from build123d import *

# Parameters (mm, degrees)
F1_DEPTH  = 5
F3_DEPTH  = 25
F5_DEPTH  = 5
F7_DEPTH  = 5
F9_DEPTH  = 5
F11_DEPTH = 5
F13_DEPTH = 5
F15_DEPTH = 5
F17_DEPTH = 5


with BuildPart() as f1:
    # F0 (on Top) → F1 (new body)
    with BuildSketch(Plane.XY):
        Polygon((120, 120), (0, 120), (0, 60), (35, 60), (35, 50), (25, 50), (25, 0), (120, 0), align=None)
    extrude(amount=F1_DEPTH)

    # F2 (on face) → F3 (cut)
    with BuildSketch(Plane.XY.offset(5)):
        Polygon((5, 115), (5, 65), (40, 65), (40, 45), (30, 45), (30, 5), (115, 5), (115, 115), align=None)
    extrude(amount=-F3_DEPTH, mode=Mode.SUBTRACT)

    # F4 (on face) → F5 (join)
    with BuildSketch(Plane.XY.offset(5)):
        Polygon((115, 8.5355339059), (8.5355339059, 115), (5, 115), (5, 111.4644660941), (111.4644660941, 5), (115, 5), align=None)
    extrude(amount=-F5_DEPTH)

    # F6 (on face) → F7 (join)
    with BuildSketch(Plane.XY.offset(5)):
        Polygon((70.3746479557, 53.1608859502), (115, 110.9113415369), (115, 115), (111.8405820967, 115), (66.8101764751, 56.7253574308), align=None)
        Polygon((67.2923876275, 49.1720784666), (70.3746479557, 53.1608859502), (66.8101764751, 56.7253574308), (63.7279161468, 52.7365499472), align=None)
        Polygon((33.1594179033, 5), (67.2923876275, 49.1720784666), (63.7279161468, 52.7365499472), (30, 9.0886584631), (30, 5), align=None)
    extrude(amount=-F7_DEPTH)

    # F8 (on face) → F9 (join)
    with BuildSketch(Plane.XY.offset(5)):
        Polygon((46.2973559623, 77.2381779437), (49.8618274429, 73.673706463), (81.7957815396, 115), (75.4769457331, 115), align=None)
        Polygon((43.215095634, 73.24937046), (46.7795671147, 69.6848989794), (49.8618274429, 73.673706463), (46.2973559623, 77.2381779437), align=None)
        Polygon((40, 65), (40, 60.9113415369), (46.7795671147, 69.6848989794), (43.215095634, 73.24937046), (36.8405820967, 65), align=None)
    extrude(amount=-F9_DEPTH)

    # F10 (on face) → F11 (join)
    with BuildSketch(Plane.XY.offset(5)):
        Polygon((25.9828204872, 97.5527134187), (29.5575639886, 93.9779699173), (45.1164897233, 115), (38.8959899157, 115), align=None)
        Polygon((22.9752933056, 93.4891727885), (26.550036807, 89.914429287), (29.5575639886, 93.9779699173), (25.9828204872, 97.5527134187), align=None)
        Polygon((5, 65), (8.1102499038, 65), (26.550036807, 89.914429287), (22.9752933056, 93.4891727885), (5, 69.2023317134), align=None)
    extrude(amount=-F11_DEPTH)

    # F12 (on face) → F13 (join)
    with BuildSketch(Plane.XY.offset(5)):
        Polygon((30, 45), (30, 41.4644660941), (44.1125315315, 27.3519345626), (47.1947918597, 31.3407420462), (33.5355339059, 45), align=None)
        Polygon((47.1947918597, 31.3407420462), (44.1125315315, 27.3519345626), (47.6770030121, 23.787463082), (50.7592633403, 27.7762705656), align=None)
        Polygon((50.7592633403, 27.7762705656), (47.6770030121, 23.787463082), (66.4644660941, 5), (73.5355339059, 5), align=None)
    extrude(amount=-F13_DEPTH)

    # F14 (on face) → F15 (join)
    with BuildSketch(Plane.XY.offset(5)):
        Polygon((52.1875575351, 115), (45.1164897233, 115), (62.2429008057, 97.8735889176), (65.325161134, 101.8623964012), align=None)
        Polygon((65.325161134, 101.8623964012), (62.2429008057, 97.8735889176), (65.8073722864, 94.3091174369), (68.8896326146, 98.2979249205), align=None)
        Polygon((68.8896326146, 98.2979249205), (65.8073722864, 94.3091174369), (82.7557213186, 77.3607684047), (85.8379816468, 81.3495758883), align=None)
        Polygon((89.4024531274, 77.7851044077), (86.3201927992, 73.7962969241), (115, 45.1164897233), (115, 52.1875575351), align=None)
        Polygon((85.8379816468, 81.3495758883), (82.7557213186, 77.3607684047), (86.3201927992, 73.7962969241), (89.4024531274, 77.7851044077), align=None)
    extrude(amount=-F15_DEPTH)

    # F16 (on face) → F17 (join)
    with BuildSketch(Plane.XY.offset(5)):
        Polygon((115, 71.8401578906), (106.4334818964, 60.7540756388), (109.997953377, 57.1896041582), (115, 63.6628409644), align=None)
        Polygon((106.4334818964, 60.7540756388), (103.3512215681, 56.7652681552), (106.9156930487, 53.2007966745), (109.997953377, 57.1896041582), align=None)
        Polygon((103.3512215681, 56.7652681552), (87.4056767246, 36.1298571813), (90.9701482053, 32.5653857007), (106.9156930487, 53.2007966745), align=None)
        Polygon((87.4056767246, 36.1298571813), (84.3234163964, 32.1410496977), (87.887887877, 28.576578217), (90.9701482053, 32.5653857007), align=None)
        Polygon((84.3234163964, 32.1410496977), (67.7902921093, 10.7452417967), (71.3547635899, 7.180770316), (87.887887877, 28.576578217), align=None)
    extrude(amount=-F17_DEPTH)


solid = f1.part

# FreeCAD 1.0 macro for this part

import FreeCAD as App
import Part
import Sketcher
Q = App.Units.Quantity

doc = App.newDocument("Part")
body = doc.addObject("PartDesign::Body", "Body")

# Sketch on XY plane
sketch1 = body.newObject("Sketcher::SketchObject", "Sketch")
sketch1.AttachmentSupport = (doc.getObject("XY_Plane"), [""])
sketch1.MapMode = "FlatFace"
sketch1.addGeometry([
    Part.LineSegment(App.Vector(120, 120, 0), App.Vector(0, 120, 0)),  # 0
    Part.LineSegment(App.Vector(0, 120, 0), App.Vector(0, 60, 0)),  # 1
    Part.LineSegment(App.Vector(0, 60, 0), App.Vector(35, 60, 0)),  # 2
    Part.LineSegment(App.Vector(35, 60, 0), App.Vector(35, 50, 0)),  # 3
    Part.LineSegment(App.Vector(35, 50, 0), App.Vector(25, 50, 0)),  # 4
    Part.LineSegment(App.Vector(25, 50, 0), App.Vector(25, 0, 0)),  # 5
    Part.LineSegment(App.Vector(25, 0, 0), App.Vector(120, 0, 0)),  # 6
    Part.LineSegment(App.Vector(120, 0, 0), App.Vector(120, 120, 0)),  # 7
], False)
sketch1.addConstraint([
    Sketcher.Constraint("Coincident", 0, 2, 1, 1),
    Sketcher.Constraint("Coincident", 1, 2, 2, 1),
    Sketcher.Constraint("Coincident", 2, 2, 3, 1),
    Sketcher.Constraint("Coincident", 3, 2, 4, 1),
    Sketcher.Constraint("Coincident", 4, 2, 5, 1),
    Sketcher.Constraint("Coincident", 5, 2, 6, 1),
    Sketcher.Constraint("Coincident", 6, 2, 7, 1),
    Sketcher.Constraint("Coincident", 7, 2, 0, 1),
    Sketcher.Constraint("Horizontal", 0),
    Sketcher.Constraint("Vertical", 1),
    Sketcher.Constraint("Horizontal", 2),
    Sketcher.Constraint("Vertical", 3),
    Sketcher.Constraint("Horizontal", 4),
    Sketcher.Constraint("Vertical", 5),
    Sketcher.Constraint("Horizontal", 6),
    Sketcher.Constraint("Vertical", 7),
    Sketcher.Constraint("PointOnObject", 0, 2, -2),
    Sketcher.Constraint("PointOnObject", 5, 2, -1),
    Sketcher.Constraint("Equal", 4, 3),
    Sketcher.Constraint("Equal", 0, 7),
    Sketcher.Constraint("DistanceX", 0, 2, 0, 1, 120.0),
    Sketcher.Constraint("DistanceX", 2, 1, 2, 2, 35.0),
    Sketcher.Constraint("DistanceX", 4, 2, 4, 1, 10.0),
    Sketcher.Constraint("DistanceY", 1, 2, 1, 1, 60.0),
])
pad1 = body.newObject("PartDesign::Pad", "Pad")
pad1.Profile = sketch1
pad1.Length = 5

# Sketch on XY plane
sketch2 = body.newObject("Sketcher::SketchObject", "Sketch001")
sketch2.AttachmentSupport = (doc.getObject("XY_Plane"), [""])
sketch2.MapMode = "FlatFace"
sketch2.AttachmentOffset = App.Placement(App.Vector(0, 0, 5), App.Rotation())
sketch2.addGeometry([
    Part.LineSegment(App.Vector(5, 115, 0), App.Vector(5, 65, 0)),  # 0
    Part.LineSegment(App.Vector(5, 65, 0), App.Vector(40, 65, 0)),  # 1
    Part.LineSegment(App.Vector(40, 65, 0), App.Vector(40, 45, 0)),  # 2
    Part.LineSegment(App.Vector(40, 45, 0), App.Vector(30, 45, 0)),  # 3
    Part.LineSegment(App.Vector(30, 45, 0), App.Vector(30, 5, 0)),  # 4
    Part.LineSegment(App.Vector(30, 5, 0), App.Vector(115, 5, 0)),  # 5
    Part.LineSegment(App.Vector(115, 5, 0), App.Vector(115, 115, 0)),  # 6
    Part.LineSegment(App.Vector(115, 115, 0), App.Vector(5, 115, 0)),  # 7
], False)
sketch2.addConstraint([
    Sketcher.Constraint("Coincident", 0, 2, 1, 1),
    Sketcher.Constraint("Coincident", 1, 2, 2, 1),
    Sketcher.Constraint("Coincident", 2, 2, 3, 1),
    Sketcher.Constraint("Coincident", 3, 2, 4, 1),
    Sketcher.Constraint("Coincident", 4, 2, 5, 1),
    Sketcher.Constraint("Coincident", 5, 2, 6, 1),
    Sketcher.Constraint("Coincident", 6, 2, 7, 1),
    Sketcher.Constraint("Coincident", 7, 2, 0, 1),
    Sketcher.Constraint("Vertical", 0),
    Sketcher.Constraint("Horizontal", 1),
    Sketcher.Constraint("Vertical", 2),
    Sketcher.Constraint("Horizontal", 3),
    Sketcher.Constraint("Vertical", 4),
    Sketcher.Constraint("Horizontal", 5),
    Sketcher.Constraint("Vertical", 6),
    Sketcher.Constraint("Horizontal", 7),
    Sketcher.Constraint("Equal", 7, 6),
    Sketcher.Constraint("DistanceX", 1, 1, 1, 2, 35.0),
    Sketcher.Constraint("DistanceX", 3, 2, 3, 1, 10.0),
    Sketcher.Constraint("DistanceX", 5, 1, 5, 2, 85.0),
    Sketcher.Constraint("DistanceY", 0, 2, 0, 1, 50.0),
    Sketcher.Constraint("DistanceY", 2, 2, 2, 1, 20.0),
    Sketcher.Constraint("DistanceX", -1, 1, 0, 2, 5.0),
    Sketcher.Constraint("DistanceY", -1, 1, 0, 2, 65.0),
])
pocket1 = body.newObject("PartDesign::Pocket", "Pocket")
pocket1.Profile = sketch2
pocket1.Length = 25

# Sketch on XY plane
sketch3 = body.newObject("Sketcher::SketchObject", "Sketch002")
sketch3.AttachmentSupport = (doc.getObject("XY_Plane"), [""])
sketch3.MapMode = "FlatFace"
sketch3.AttachmentOffset = App.Placement(App.Vector(0, 0, 5), App.Rotation())
sketch3.addGeometry([
    Part.LineSegment(App.Vector(115, 8.5, 0), App.Vector(8.5, 115, 0)),  # 0
    Part.LineSegment(App.Vector(8.5, 115, 0), App.Vector(5, 115, 0)),  # 1
    Part.LineSegment(App.Vector(5, 115, 0), App.Vector(5, 111.5, 0)),  # 2
    Part.LineSegment(App.Vector(5, 111.5, 0), App.Vector(111.5, 5, 0)),  # 3
    Part.LineSegment(App.Vector(111.5, 5, 0), App.Vector(115, 5, 0)),  # 4
    Part.LineSegment(App.Vector(115, 5, 0), App.Vector(115, 8.5, 0)),  # 5
], False)
sketch3.addConstraint([
    Sketcher.Constraint("Coincident", 0, 2, 1, 1),
    Sketcher.Constraint("Coincident", 1, 2, 2, 1),
    Sketcher.Constraint("Coincident", 2, 2, 3, 1),
    Sketcher.Constraint("Coincident", 3, 2, 4, 1),
    Sketcher.Constraint("Coincident", 4, 2, 5, 1),
    Sketcher.Constraint("Coincident", 5, 2, 0, 1),
    Sketcher.Constraint("Horizontal", 1),
    Sketcher.Constraint("Vertical", 2),
    Sketcher.Constraint("Horizontal", 4),
    Sketcher.Constraint("Vertical", 5),
    Sketcher.Constraint("Parallel", 0, 3),
    Sketcher.Constraint("Equal", 1, 4),
    Sketcher.Constraint("Equal", 4, 2),
    Sketcher.Constraint("Angle", 0, Q("135 deg")),
    Sketcher.Constraint("DistanceY", -1, 1, 0, 2, 115.0),
    Sketcher.Constraint("DistanceX", -1, 1, 1, 2, 5.0),
    Sketcher.Constraint("DistanceY", -1, 1, 3, 2, 5.0),
    Sketcher.Constraint("Distance", 0, 150.563492),
])
pad2 = body.newObject("PartDesign::Pad", "Pad001")
pad2.Profile = sketch3
pad2.Length = 5
pad2.Reversed = True

# Sketch on XY plane
sketch4 = body.newObject("Sketcher::SketchObject", "Sketch003")
sketch4.AttachmentSupport = (doc.getObject("XY_Plane"), [""])
sketch4.MapMode = "FlatFace"
sketch4.AttachmentOffset = App.Placement(App.Vector(0, 0, 5), App.Rotation())
sketch4.addGeometry([
    Part.LineSegment(App.Vector(70.4, 53.2, 0), App.Vector(115, 110.9, 0)),  # 0
    Part.LineSegment(App.Vector(115, 110.9, 0), App.Vector(115, 115, 0)),  # 1
    Part.LineSegment(App.Vector(115, 115, 0), App.Vector(111.8, 115, 0)),  # 2
    Part.LineSegment(App.Vector(111.8, 115, 0), App.Vector(66.8, 56.7, 0)),  # 3
    Part.LineSegment(App.Vector(66.8, 56.7, 0), App.Vector(63.7, 52.7, 0)),  # 4
    Part.LineSegment(App.Vector(63.7, 52.7, 0), App.Vector(30, 9.1, 0)),  # 5
    Part.LineSegment(App.Vector(30, 9.1, 0), App.Vector(30, 5, 0)),  # 6
    Part.LineSegment(App.Vector(30, 5, 0), App.Vector(33.2, 5, 0)),  # 7
    Part.LineSegment(App.Vector(33.2, 5, 0), App.Vector(67.3, 49.2, 0)),  # 8
    Part.LineSegment(App.Vector(67.3, 49.2, 0), App.Vector(70.4, 53.2, 0)),  # 9
], False)
sketch4.addConstraint([
    Sketcher.Constraint("Coincident", 0, 2, 1, 1),
    Sketcher.Constraint("Coincident", 1, 2, 2, 1),
    Sketcher.Constraint("Coincident", 2, 2, 3, 1),
    Sketcher.Constraint("Coincident", 3, 2, 4, 1),
    Sketcher.Constraint("Coincident", 4, 2, 5, 1),
    Sketcher.Constraint("Coincident", 5, 2, 6, 1),
    Sketcher.Constraint("Coincident", 6, 2, 7, 1),
    Sketcher.Constraint("Coincident", 7, 2, 8, 1),
    Sketcher.Constraint("Coincident", 8, 2, 9, 1),
    Sketcher.Constraint("Coincident", 9, 2, 0, 1),
    Sketcher.Constraint("Vertical", 1),
    Sketcher.Constraint("Horizontal", 2),
    Sketcher.Constraint("Vertical", 6),
    Sketcher.Constraint("Horizontal", 7),
    Sketcher.Constraint("Parallel", 0, 3),
    Sketcher.Constraint("Parallel", 3, 4),
    Sketcher.Constraint("Parallel", 4, 5),
    Sketcher.Constraint("Parallel", 5, 8),
    Sketcher.Constraint("Parallel", 8, 9),
    Sketcher.Constraint("Equal", 2, 7),
    Sketcher.Constraint("Equal", 4, 9),
    Sketcher.Constraint("DistanceX", -1, 1, 0, 2, 115.0),
    Sketcher.Constraint("DistanceY", -1, 1, 1, 2, 115.0),
    Sketcher.Constraint("DistanceX", -1, 1, 5, 2, 30.0),
    Sketcher.Constraint("DistanceY", -1, 1, 6, 2, 5.0),
    Sketcher.Constraint("DistanceY", 1, 1, 1, 2, 4.088658),
    Sketcher.Constraint("DistanceY", 5, 2, 3, 2, 47.636699),
    Sketcher.Constraint("DistanceX", 7, 2, 4, 2, 30.568498),
    Sketcher.Constraint("Distance", 0, 72.983129),
    Sketcher.Constraint("Distance", 3, 73.64558),
])
pad3 = body.newObject("PartDesign::Pad", "Pad002")
pad3.Profile = sketch4
pad3.Length = 5
pad3.Reversed = True

# Sketch on XY plane
sketch5 = body.newObject("Sketcher::SketchObject", "Sketch004")
sketch5.AttachmentSupport = (doc.getObject("XY_Plane"), [""])
sketch5.MapMode = "FlatFace"
sketch5.AttachmentOffset = App.Placement(App.Vector(0, 0, 5), App.Rotation())
sketch5.addGeometry([
    Part.LineSegment(App.Vector(49.9, 73.7, 0), App.Vector(81.8, 115, 0)),  # 0
    Part.LineSegment(App.Vector(81.8, 115, 0), App.Vector(75.5, 115, 0)),  # 1
    Part.LineSegment(App.Vector(75.5, 115, 0), App.Vector(46.3, 77.2, 0)),  # 2
    Part.LineSegment(App.Vector(46.3, 77.2, 0), App.Vector(43.2, 73.2, 0)),  # 3
    Part.LineSegment(App.Vector(43.2, 73.2, 0), App.Vector(36.8, 65, 0)),  # 4
    Part.LineSegment(App.Vector(36.8, 65, 0), App.Vector(40, 65, 0)),  # 5
    Part.LineSegment(App.Vector(40, 65, 0), App.Vector(40, 60.9, 0)),  # 6
    Part.LineSegment(App.Vector(40, 60.9, 0), App.Vector(46.8, 69.7, 0)),  # 7
    Part.LineSegment(App.Vector(46.8, 69.7, 0), App.Vector(49.9, 73.7, 0)),  # 8
], False)
sketch5.addConstraint([
    Sketcher.Constraint("Coincident", 0, 2, 1, 1),
    Sketcher.Constraint("Coincident", 1, 2, 2, 1),
    Sketcher.Constraint("Coincident", 2, 2, 3, 1),
    Sketcher.Constraint("Coincident", 3, 2, 4, 1),
    Sketcher.Constraint("Coincident", 4, 2, 5, 1),
    Sketcher.Constraint("Coincident", 5, 2, 6, 1),
    Sketcher.Constraint("Coincident", 6, 2, 7, 1),
    Sketcher.Constraint("Coincident", 7, 2, 8, 1),
    Sketcher.Constraint("Coincident", 8, 2, 0, 1),
    Sketcher.Constraint("Horizontal", 1),
    Sketcher.Constraint("Horizontal", 5),
    Sketcher.Constraint("Vertical", 6),
    Sketcher.Constraint("Parallel", 0, 2),
    Sketcher.Constraint("Parallel", 2, 3),
    Sketcher.Constraint("Parallel", 3, 4),
    Sketcher.Constraint("Parallel", 4, 7),
    Sketcher.Constraint("Parallel", 7, 8),
    Sketcher.Constraint("Equal", 3, 8),
    Sketcher.Constraint("DistanceY", -1, 1, 0, 2, 115.0),
    Sketcher.Constraint("DistanceY", -1, 1, 4, 2, 65.0),
    Sketcher.Constraint("DistanceX", -1, 1, 5, 2, 40.0),
    Sketcher.Constraint("DistanceY", 6, 2, 6, 1, 4.088658),
    Sketcher.Constraint("DistanceY", -1, 1, 7, 2, 69.684899),
    Sketcher.Constraint("DistanceX", 4, 2, 0, 2, 44.955199),
    Sketcher.Constraint("Distance", 2, 47.722151),
    Sketcher.Constraint("DistanceX", 1, 2, 1, 1, 6.318836),
    Sketcher.Constraint("DistanceY", -1, 1, 3, 2, 73.24937),
])
pad4 = body.newObject("PartDesign::Pad", "Pad003")
pad4.Profile = sketch5
pad4.Length = 5
pad4.Reversed = True

# Sketch on XY plane
sketch6 = body.newObject("Sketcher::SketchObject", "Sketch005")
sketch6.AttachmentSupport = (doc.getObject("XY_Plane"), [""])
sketch6.MapMode = "FlatFace"
sketch6.AttachmentOffset = App.Placement(App.Vector(0, 0, 5), App.Rotation())
sketch6.addGeometry([
    Part.LineSegment(App.Vector(29.6, 94, 0), App.Vector(45.1, 115, 0)),  # 0
    Part.LineSegment(App.Vector(45.1, 115, 0), App.Vector(38.9, 115, 0)),  # 1
    Part.LineSegment(App.Vector(38.9, 115, 0), App.Vector(26, 97.6, 0)),  # 2
    Part.LineSegment(App.Vector(26, 97.6, 0), App.Vector(23, 93.5, 0)),  # 3
    Part.LineSegment(App.Vector(23, 93.5, 0), App.Vector(5, 69.2, 0)),  # 4
    Part.LineSegment(App.Vector(5, 69.2, 0), App.Vector(5, 65, 0)),  # 5
    Part.LineSegment(App.Vector(5, 65, 0), App.Vector(8.1, 65, 0)),  # 6
    Part.LineSegment(App.Vector(8.1, 65, 0), App.Vector(26.6, 89.9, 0)),  # 7
    Part.LineSegment(App.Vector(26.6, 89.9, 0), App.Vector(29.6, 94, 0)),  # 8
], False)
sketch6.addConstraint([
    Sketcher.Constraint("Coincident", 0, 2, 1, 1),
    Sketcher.Constraint("Coincident", 1, 2, 2, 1),
    Sketcher.Constraint("Coincident", 2, 2, 3, 1),
    Sketcher.Constraint("Coincident", 3, 2, 4, 1),
    Sketcher.Constraint("Coincident", 4, 2, 5, 1),
    Sketcher.Constraint("Coincident", 5, 2, 6, 1),
    Sketcher.Constraint("Coincident", 6, 2, 7, 1),
    Sketcher.Constraint("Coincident", 7, 2, 8, 1),
    Sketcher.Constraint("Coincident", 8, 2, 0, 1),
    Sketcher.Constraint("Horizontal", 1),
    Sketcher.Constraint("Vertical", 5),
    Sketcher.Constraint("Horizontal", 6),
    Sketcher.Constraint("Parallel", 0, 2),
    Sketcher.Constraint("Parallel", 2, 3),
    Sketcher.Constraint("Parallel", 3, 4),
    Sketcher.Constraint("Parallel", 4, 7),
    Sketcher.Constraint("Parallel", 7, 8),
    Sketcher.Constraint("Equal", 3, 8),
    Sketcher.Constraint("DistanceY", -1, 1, 0, 2, 115.0),
    Sketcher.Constraint("DistanceX", -1, 1, 4, 2, 5.0),
    Sketcher.Constraint("DistanceY", -1, 1, 5, 2, 65.0),
    Sketcher.Constraint("DistanceX", 1, 2, 1, 1, 6.2205),
    Sketcher.Constraint("DistanceX", 6, 1, 6, 2, 3.11025),
    Sketcher.Constraint("DistanceY", 5, 2, 5, 1, 4.202332),
    Sketcher.Constraint("Distance", 2, 21.706169),
    Sketcher.Constraint("Distance", 3, 5.055451),
    Sketcher.Constraint("Distance", 7, 30.996041),
])
pad5 = body.newObject("PartDesign::Pad", "Pad004")
pad5.Profile = sketch6
pad5.Length = 5
pad5.Reversed = True

# Sketch on XY plane
sketch7 = body.newObject("Sketcher::SketchObject", "Sketch006")
sketch7.AttachmentSupport = (doc.getObject("XY_Plane"), [""])
sketch7.MapMode = "FlatFace"
sketch7.AttachmentOffset = App.Placement(App.Vector(0, 0, 5), App.Rotation())
sketch7.addGeometry([
    Part.LineSegment(App.Vector(30, 45, 0), App.Vector(30, 41.5, 0)),  # 0
    Part.LineSegment(App.Vector(30, 41.5, 0), App.Vector(66.5, 5, 0)),  # 1
    Part.LineSegment(App.Vector(66.5, 5, 0), App.Vector(73.5, 5, 0)),  # 2
    Part.LineSegment(App.Vector(73.5, 5, 0), App.Vector(33.5, 45, 0)),  # 3
    Part.LineSegment(App.Vector(33.5, 45, 0), App.Vector(30, 45, 0)),  # 4
], False)
sketch7.addConstraint([
    Sketcher.Constraint("Coincident", 0, 2, 1, 1),
    Sketcher.Constraint("Coincident", 1, 2, 2, 1),
    Sketcher.Constraint("Coincident", 2, 2, 3, 1),
    Sketcher.Constraint("Coincident", 3, 2, 4, 1),
    Sketcher.Constraint("Coincident", 4, 2, 0, 1),
    Sketcher.Constraint("Vertical", 0),
    Sketcher.Constraint("Horizontal", 2),
    Sketcher.Constraint("Horizontal", 4),
    Sketcher.Constraint("Parallel", 1, 3),
    Sketcher.Constraint("Equal", 4, 0),
    Sketcher.Constraint("Angle", 1, Q("-45 deg")),
    Sketcher.Constraint("DistanceX", -1, 1, 0, 2, 30.0),
    Sketcher.Constraint("DistanceY", -1, 1, 1, 2, 5.0),
    Sketcher.Constraint("DistanceY", -1, 1, 3, 2, 45.0),
    Sketcher.Constraint("DistanceX", 2, 1, 2, 2, 7.071068),
])
pad6 = body.newObject("PartDesign::Pad", "Pad005")
pad6.Profile = sketch7
pad6.Length = 5
pad6.Reversed = True

# Sketch on XY plane
sketch8 = body.newObject("Sketcher::SketchObject", "Sketch007")
sketch8.AttachmentSupport = (doc.getObject("XY_Plane"), [""])
sketch8.MapMode = "FlatFace"
sketch8.AttachmentOffset = App.Placement(App.Vector(0, 0, 5), App.Rotation())
sketch8.addGeometry([
    Part.LineSegment(App.Vector(52, 115, 0), App.Vector(45, 115, 0)),  # 0
    Part.LineSegment(App.Vector(45, 115, 0), App.Vector(115, 45, 0)),  # 1
    Part.LineSegment(App.Vector(115, 45, 0), App.Vector(115, 52, 0)),  # 2
    Part.LineSegment(App.Vector(115, 52, 0), App.Vector(69, 98, 0)),  # 3
    Part.LineSegment(App.Vector(69, 98, 0), App.Vector(65, 102, 0)),  # 4
    Part.LineSegment(App.Vector(65, 102, 0), App.Vector(52, 115, 0)),  # 5
], False)
sketch8.addConstraint([
    Sketcher.Constraint("Coincident", 0, 2, 1, 1),
    Sketcher.Constraint("Coincident", 1, 2, 2, 1),
    Sketcher.Constraint("Coincident", 2, 2, 3, 1),
    Sketcher.Constraint("Coincident", 3, 2, 4, 1),
    Sketcher.Constraint("Coincident", 4, 2, 5, 1),
    Sketcher.Constraint("Coincident", 5, 2, 0, 1),
    Sketcher.Constraint("Horizontal", 0),
    Sketcher.Constraint("Vertical", 2),
    Sketcher.Constraint("Parallel", 1, 3),
    Sketcher.Constraint("Parallel", 3, 4),
    Sketcher.Constraint("Parallel", 4, 5),
    Sketcher.Constraint("Equal", 0, 2),
    Sketcher.Constraint("DistanceY", -1, 1, 0, 2, 115.0),
    Sketcher.Constraint("DistanceX", -1, 1, 1, 2, 115.0),
    Sketcher.Constraint("Distance", 1, 98.830208),
    Sketcher.Constraint("DistanceX", 0, 2, 0, 1, 7.071068),
    Sketcher.Constraint("DistanceX", -1, 1, 4, 2, 65.325161),
    Sketcher.Constraint("DistanceX", 4, 2, 3, 2, 3.564471),
])
pad7 = body.newObject("PartDesign::Pad", "Pad006")
pad7.Profile = sketch8
pad7.Length = 5
pad7.Reversed = True

# Sketch on XY plane
sketch9 = body.newObject("Sketcher::SketchObject", "Sketch008")
sketch9.AttachmentSupport = (doc.getObject("XY_Plane"), [""])
sketch9.MapMode = "FlatFace"
sketch9.AttachmentOffset = App.Placement(App.Vector(0, 0, 5), App.Rotation())
sketch9.addGeometry([
    Part.LineSegment(App.Vector(115, 72, 0), App.Vector(106, 61, 0)),  # 0
    Part.LineSegment(App.Vector(106, 61, 0), App.Vector(103, 57, 0)),  # 1
    Part.LineSegment(App.Vector(103, 57, 0), App.Vector(87, 36, 0)),  # 2
    Part.LineSegment(App.Vector(87, 36, 0), App.Vector(84, 32, 0)),  # 3
    Part.LineSegment(App.Vector(84, 32, 0), App.Vector(68, 11, 0)),  # 4
    Part.LineSegment(App.Vector(68, 11, 0), App.Vector(71, 7, 0)),  # 5
    Part.LineSegment(App.Vector(71, 7, 0), App.Vector(88, 29, 0)),  # 6
    Part.LineSegment(App.Vector(88, 29, 0), App.Vector(91, 33, 0)),  # 7
    Part.LineSegment(App.Vector(91, 33, 0), App.Vector(107, 53, 0)),  # 8
    Part.LineSegment(App.Vector(107, 53, 0), App.Vector(110, 57, 0)),  # 9
    Part.LineSegment(App.Vector(110, 57, 0), App.Vector(115, 64, 0)),  # 10
    Part.LineSegment(App.Vector(115, 64, 0), App.Vector(115, 72, 0)),  # 11
], False)
sketch9.addConstraint([
    Sketcher.Constraint("Coincident", 0, 2, 1, 1),
    Sketcher.Constraint("Coincident", 1, 2, 2, 1),
    Sketcher.Constraint("Coincident", 2, 2, 3, 1),
    Sketcher.Constraint("Coincident", 3, 2, 4, 1),
    Sketcher.Constraint("Coincident", 4, 2, 5, 1),
    Sketcher.Constraint("Coincident", 5, 2, 6, 1),
    Sketcher.Constraint("Coincident", 6, 2, 7, 1),
    Sketcher.Constraint("Coincident", 7, 2, 8, 1),
    Sketcher.Constraint("Coincident", 8, 2, 9, 1),
    Sketcher.Constraint("Coincident", 9, 2, 10, 1),
    Sketcher.Constraint("Coincident", 10, 2, 11, 1),
    Sketcher.Constraint("Coincident", 11, 2, 0, 1),
    Sketcher.Constraint("Vertical", 11),
    Sketcher.Constraint("Parallel", 0, 1),
    Sketcher.Constraint("Parallel", 1, 2),
    Sketcher.Constraint("Parallel", 2, 3),
    Sketcher.Constraint("Parallel", 3, 4),
    Sketcher.Constraint("Parallel", 4, 6),
    Sketcher.Constraint("Parallel", 6, 7),
    Sketcher.Constraint("Parallel", 7, 8),
    Sketcher.Constraint("Parallel", 8, 9),
    Sketcher.Constraint("Parallel", 9, 10),
    Sketcher.Constraint("Equal", 1, 3),
    Sketcher.Constraint("Equal", 3, 5),
    Sketcher.Constraint("Equal", 4, 6),
    Sketcher.Constraint("Equal", 5, 7),
    Sketcher.Constraint("Equal", 2, 8),
    Sketcher.Constraint("Equal", 7, 9),
    Sketcher.Constraint("Angle", 5, Q("-45 deg")),
    Sketcher.Constraint("DistanceX", -1, 1, 10, 2, 115.0),
    Sketcher.Constraint("Distance", 4, 27.039319),
    Sketcher.Constraint("DistanceY", 11, 1, 11, 2, 8.177317),
    Sketcher.Constraint("DistanceX", -1, 1, 0, 2, 106.433482),
    Sketcher.Constraint("DistanceX", -1, 1, 1, 2, 103.351222),
    Sketcher.Constraint("DistanceY", -1, 1, 1, 2, 56.765268),
    Sketcher.Constraint("DistanceY", -1, 1, 3, 2, 32.14105),
])
pad8 = body.newObject("PartDesign::Pad", "Pad007")
pad8.Profile = sketch9
pad8.Length = 5
pad8.Reversed = True

doc.recompute()
